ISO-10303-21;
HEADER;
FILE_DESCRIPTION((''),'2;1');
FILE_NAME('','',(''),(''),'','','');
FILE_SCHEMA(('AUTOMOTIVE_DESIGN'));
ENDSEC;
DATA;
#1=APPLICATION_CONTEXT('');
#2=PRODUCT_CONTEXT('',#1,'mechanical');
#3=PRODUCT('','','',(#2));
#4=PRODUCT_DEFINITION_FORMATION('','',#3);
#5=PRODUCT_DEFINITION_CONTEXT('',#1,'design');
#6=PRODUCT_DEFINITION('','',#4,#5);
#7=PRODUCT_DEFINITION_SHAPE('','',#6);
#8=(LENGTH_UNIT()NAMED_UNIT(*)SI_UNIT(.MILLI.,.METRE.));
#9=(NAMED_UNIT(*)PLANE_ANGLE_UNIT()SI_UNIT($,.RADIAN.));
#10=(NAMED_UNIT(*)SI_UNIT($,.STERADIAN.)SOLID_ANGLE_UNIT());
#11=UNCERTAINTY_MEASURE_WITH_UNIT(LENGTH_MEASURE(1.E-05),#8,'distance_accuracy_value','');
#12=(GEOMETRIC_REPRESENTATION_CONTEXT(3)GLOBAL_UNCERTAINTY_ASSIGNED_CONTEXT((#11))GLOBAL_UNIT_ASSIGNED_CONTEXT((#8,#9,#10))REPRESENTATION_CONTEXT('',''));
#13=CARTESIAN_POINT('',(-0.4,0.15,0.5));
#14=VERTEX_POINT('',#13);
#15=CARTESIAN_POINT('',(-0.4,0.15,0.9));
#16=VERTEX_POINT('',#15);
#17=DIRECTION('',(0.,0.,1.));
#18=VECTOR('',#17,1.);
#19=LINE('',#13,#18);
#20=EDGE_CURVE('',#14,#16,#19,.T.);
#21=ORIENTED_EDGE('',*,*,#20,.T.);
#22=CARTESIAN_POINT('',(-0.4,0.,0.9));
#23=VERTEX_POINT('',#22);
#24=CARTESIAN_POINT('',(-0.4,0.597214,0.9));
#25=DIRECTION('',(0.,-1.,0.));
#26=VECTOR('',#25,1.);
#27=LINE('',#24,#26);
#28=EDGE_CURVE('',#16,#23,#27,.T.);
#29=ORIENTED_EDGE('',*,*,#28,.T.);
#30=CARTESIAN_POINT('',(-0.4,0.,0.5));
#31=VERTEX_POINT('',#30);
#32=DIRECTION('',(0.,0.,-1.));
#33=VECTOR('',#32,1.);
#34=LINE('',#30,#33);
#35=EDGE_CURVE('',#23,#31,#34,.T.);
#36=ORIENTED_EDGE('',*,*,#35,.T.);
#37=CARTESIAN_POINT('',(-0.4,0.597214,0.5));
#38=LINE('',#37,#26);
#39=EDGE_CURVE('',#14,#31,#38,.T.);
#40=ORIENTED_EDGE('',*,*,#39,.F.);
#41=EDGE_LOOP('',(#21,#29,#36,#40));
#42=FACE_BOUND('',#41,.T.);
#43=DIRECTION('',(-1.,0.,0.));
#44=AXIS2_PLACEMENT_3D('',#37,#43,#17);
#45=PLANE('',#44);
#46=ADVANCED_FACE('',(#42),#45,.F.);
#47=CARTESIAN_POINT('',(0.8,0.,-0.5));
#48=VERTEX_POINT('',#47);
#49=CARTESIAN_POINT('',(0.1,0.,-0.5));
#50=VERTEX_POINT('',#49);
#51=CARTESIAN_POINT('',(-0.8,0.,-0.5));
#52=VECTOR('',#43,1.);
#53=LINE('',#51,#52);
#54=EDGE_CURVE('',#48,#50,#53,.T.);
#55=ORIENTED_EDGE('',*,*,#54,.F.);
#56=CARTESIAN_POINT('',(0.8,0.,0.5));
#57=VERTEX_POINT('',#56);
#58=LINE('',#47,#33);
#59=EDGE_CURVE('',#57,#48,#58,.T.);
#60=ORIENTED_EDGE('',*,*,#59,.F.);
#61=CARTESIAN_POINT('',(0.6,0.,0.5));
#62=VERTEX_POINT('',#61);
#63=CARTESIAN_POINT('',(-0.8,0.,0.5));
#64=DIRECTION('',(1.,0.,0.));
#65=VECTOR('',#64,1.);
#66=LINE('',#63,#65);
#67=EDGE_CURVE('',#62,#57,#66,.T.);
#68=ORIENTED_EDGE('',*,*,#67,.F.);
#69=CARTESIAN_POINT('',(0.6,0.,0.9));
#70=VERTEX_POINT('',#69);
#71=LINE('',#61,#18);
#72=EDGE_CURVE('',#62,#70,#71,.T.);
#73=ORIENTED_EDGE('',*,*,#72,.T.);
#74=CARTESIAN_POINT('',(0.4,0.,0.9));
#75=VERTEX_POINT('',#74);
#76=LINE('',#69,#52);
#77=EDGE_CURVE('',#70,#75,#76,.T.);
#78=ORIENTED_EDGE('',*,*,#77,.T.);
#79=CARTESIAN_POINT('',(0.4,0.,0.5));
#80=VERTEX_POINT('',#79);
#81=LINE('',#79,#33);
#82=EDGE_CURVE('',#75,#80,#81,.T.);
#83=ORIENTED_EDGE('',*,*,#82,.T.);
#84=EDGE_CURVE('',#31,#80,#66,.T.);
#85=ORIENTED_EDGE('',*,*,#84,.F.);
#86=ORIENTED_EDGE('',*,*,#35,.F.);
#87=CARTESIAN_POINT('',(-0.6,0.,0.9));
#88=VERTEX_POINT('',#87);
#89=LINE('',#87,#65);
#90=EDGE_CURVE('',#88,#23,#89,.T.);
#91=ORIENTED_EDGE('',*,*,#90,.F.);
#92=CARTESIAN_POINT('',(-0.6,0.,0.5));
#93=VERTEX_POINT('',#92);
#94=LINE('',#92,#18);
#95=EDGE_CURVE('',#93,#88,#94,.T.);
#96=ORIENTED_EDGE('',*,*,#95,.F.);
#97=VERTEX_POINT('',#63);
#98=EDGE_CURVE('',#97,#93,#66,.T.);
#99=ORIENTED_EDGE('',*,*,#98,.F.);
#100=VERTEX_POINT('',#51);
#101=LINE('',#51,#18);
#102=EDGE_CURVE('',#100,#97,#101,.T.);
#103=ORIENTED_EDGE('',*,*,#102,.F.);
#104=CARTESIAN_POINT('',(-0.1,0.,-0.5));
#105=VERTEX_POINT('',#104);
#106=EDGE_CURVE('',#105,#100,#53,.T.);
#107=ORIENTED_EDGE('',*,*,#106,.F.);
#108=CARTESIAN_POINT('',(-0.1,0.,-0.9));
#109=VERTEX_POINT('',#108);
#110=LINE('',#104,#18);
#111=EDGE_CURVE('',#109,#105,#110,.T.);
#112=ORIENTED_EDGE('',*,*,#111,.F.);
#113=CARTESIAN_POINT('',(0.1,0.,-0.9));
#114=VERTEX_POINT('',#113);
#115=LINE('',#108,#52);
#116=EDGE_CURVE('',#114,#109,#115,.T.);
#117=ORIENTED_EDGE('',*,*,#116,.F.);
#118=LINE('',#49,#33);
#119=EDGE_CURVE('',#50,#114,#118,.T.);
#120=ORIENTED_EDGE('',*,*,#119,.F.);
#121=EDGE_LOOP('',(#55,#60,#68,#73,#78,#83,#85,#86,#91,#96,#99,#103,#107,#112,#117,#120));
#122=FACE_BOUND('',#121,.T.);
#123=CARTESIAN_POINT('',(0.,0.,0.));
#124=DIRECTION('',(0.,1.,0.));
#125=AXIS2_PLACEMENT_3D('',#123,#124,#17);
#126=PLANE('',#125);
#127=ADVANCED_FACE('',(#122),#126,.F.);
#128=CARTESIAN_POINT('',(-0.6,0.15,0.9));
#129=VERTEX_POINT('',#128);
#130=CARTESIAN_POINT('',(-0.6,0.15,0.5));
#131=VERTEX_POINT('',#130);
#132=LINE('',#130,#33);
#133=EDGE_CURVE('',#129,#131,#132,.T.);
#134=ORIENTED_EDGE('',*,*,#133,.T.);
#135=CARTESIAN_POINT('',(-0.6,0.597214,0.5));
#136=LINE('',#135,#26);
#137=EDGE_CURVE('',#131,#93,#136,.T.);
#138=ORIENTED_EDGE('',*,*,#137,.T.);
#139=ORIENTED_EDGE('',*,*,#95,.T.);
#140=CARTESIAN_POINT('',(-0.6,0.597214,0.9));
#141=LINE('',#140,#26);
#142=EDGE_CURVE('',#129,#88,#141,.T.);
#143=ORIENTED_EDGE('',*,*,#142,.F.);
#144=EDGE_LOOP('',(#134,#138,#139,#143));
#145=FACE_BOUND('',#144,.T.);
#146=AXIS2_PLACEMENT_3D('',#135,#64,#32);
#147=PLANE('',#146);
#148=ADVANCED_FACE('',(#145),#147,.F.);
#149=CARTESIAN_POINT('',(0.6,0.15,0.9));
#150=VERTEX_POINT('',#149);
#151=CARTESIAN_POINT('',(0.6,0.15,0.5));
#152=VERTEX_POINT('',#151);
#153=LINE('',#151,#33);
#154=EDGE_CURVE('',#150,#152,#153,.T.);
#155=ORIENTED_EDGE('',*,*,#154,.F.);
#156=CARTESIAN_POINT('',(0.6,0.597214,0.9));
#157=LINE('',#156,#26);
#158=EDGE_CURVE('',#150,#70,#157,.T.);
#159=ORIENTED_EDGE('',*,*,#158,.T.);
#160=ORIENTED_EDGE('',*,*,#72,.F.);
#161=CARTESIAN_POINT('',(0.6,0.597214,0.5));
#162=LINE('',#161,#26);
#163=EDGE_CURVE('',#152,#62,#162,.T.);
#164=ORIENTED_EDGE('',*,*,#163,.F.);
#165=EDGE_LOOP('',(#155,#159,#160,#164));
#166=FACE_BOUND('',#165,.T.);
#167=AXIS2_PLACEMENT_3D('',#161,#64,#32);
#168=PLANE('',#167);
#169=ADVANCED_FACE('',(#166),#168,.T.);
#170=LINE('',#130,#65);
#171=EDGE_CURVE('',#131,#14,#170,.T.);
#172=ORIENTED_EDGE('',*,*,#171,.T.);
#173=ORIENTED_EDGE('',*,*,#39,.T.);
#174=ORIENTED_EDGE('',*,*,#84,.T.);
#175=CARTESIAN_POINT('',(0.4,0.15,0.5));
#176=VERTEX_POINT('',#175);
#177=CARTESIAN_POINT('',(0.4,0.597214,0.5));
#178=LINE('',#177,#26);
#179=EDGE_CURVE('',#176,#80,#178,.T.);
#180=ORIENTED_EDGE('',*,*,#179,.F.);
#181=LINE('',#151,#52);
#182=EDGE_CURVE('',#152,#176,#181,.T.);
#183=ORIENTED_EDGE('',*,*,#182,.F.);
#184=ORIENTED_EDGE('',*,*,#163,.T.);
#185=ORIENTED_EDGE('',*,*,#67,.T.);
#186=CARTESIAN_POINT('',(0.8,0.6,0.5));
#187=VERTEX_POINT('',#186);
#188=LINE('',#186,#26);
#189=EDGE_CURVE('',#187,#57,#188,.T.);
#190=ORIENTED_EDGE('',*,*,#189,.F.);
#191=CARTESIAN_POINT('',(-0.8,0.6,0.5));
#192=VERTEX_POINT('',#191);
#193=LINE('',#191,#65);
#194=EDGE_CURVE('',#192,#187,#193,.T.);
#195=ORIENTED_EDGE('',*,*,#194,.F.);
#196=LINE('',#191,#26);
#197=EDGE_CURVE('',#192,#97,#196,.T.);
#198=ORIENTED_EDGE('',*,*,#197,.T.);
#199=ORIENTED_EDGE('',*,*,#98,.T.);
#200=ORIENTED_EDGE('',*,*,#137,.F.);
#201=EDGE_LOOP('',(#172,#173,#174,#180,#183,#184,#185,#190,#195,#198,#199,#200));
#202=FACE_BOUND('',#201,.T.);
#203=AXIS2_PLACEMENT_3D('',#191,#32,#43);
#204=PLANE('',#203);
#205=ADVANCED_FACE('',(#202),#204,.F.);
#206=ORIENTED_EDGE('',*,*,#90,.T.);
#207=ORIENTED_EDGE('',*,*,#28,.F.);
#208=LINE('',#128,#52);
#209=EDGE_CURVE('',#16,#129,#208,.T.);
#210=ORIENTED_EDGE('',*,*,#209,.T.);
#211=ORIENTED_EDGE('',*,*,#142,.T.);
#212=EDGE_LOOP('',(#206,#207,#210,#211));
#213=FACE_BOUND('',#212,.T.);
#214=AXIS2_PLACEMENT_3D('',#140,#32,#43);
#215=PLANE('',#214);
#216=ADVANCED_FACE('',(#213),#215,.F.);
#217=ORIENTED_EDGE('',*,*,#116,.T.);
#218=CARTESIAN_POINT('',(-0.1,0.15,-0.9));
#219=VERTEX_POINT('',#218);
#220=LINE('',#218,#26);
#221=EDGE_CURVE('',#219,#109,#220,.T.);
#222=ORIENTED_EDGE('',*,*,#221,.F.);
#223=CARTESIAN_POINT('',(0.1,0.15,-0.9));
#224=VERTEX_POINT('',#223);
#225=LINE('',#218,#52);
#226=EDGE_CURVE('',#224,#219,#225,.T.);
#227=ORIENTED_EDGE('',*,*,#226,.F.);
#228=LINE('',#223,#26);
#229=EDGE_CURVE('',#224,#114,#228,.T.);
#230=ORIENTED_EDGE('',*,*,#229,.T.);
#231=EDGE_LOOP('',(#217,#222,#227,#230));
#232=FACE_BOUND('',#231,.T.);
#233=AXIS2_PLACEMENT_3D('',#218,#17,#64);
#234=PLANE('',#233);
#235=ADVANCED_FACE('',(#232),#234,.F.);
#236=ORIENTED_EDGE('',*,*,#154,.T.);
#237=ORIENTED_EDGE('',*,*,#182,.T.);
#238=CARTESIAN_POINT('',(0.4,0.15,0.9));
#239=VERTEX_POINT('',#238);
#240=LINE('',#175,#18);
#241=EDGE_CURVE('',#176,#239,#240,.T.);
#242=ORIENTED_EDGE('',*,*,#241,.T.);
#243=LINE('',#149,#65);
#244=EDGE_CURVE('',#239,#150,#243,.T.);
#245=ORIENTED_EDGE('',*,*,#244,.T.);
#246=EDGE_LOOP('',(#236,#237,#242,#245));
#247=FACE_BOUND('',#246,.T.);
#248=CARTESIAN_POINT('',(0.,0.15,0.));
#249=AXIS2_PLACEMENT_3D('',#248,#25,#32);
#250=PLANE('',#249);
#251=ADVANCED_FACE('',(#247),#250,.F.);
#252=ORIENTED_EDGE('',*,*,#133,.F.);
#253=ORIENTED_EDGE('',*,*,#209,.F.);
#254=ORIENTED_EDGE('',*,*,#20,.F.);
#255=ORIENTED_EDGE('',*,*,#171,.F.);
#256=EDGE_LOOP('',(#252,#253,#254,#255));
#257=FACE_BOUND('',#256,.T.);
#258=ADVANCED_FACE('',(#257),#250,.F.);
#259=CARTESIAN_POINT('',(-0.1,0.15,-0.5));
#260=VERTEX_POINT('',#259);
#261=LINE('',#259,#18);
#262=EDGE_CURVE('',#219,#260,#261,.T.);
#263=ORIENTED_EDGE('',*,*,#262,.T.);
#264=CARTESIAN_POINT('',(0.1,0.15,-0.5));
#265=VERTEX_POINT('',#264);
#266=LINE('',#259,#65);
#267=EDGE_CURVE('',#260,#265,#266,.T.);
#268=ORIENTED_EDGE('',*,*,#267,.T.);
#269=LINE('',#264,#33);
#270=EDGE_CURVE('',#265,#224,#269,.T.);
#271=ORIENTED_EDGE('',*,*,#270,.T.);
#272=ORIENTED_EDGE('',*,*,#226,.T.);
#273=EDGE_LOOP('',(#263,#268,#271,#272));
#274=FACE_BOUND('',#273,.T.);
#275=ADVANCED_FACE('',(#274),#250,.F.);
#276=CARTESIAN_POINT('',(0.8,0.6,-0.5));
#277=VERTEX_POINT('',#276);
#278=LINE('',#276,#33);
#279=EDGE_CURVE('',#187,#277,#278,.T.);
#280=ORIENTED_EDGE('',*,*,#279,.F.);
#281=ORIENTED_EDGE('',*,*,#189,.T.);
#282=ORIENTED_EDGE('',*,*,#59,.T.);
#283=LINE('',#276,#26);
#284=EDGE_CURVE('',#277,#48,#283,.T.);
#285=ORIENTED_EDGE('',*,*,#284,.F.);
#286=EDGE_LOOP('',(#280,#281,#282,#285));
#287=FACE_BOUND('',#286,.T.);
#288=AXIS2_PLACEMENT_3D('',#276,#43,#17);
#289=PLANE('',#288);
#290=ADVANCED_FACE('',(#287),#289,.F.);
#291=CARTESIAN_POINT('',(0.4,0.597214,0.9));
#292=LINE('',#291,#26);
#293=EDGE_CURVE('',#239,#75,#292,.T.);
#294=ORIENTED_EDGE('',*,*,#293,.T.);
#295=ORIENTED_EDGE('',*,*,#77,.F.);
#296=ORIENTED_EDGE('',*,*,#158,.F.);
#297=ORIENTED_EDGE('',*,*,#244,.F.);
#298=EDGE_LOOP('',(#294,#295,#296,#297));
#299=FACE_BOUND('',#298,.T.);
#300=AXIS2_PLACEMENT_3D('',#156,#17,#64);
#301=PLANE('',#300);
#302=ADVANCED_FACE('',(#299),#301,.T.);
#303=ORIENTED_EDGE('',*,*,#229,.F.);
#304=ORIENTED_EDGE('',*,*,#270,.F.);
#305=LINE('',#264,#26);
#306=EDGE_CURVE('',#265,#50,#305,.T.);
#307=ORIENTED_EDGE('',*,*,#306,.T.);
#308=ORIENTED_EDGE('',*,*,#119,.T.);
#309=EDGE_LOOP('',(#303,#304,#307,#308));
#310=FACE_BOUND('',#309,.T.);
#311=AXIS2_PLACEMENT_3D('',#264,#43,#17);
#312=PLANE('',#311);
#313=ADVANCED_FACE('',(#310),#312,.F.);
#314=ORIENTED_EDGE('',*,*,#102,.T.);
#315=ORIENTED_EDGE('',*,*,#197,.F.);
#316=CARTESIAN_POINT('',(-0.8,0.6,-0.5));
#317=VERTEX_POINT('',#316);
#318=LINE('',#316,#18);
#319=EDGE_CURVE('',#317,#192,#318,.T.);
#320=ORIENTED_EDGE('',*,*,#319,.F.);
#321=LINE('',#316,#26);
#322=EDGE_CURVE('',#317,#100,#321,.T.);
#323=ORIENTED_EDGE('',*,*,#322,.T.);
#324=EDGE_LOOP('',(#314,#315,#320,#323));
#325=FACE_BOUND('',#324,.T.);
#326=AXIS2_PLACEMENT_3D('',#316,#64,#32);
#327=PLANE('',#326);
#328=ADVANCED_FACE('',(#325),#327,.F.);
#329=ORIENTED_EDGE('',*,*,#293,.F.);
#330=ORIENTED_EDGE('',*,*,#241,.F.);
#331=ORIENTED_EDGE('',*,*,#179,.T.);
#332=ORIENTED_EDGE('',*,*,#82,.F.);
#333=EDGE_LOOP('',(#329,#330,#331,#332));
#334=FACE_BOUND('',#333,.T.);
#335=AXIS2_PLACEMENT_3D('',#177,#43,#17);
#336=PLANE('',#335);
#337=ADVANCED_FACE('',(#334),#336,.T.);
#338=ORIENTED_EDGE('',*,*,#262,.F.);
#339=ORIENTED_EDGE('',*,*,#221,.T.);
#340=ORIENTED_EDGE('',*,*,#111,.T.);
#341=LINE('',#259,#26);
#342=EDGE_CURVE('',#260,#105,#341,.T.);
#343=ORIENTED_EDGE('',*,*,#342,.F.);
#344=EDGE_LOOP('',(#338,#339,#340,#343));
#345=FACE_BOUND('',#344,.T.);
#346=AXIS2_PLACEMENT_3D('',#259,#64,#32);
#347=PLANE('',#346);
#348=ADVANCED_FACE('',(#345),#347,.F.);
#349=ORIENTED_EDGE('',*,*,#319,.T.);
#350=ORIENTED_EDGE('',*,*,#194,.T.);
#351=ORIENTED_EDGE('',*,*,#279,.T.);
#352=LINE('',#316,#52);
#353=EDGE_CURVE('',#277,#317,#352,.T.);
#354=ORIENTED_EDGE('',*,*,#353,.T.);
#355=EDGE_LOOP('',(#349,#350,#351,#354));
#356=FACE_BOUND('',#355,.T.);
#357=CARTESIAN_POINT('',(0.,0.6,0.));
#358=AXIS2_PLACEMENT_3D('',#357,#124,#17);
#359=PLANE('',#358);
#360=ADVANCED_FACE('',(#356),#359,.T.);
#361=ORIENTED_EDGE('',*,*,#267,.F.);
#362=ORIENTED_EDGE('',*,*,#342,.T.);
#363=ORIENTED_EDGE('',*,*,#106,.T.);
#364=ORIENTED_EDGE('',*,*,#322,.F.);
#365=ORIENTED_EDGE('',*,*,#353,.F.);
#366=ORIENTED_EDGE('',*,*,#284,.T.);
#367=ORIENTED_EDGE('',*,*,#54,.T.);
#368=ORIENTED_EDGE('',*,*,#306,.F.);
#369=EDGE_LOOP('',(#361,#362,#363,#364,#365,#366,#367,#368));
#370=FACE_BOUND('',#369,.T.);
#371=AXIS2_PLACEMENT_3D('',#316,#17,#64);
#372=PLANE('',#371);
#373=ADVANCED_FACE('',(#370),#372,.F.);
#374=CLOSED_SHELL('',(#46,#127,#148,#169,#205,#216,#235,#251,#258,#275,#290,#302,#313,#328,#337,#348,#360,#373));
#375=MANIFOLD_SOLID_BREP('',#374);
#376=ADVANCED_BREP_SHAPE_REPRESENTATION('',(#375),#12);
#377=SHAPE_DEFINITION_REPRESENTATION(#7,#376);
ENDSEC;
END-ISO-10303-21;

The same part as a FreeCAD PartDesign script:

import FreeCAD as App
import Part
import Sketcher

V = App.Vector
Q = App.Units.Quantity

doc = App.newDocument("Part")
body = doc.addObject("PartDesign::Body", "Body")

sketch1 = doc.addObject("Sketcher::SketchObject", "Sketch")
body.addObject(sketch1)
sketch1.AttachmentSupport = (doc.XZ_Plane, [""])
sketch1.MapMode = "FlatFace"
sketch1.addGeometry(Part.LineSegment(V(-0.8, -0.5, 0), V(-0.8, 0.5, 0)), False)
sketch1.addGeometry(Part.LineSegment(V(-0.8, 0.5, 0), V(0.8, 0.5, 0)), False)
sketch1.addGeometry(Part.LineSegment(V(0.8, 0.5, 0), V(0.8, -0.5, 0)), False)
sketch1.addGeometry(Part.LineSegment(V(0.8, -0.5, 0), V(-0.8, -0.5, 0)), False)
sketch1.addConstraint(Sketcher.Constraint("Coincident", 0, 2, 1, 1))
sketch1.addConstraint(Sketcher.Constraint("Coincident", 1, 2, 2, 1))
sketch1.addConstraint(Sketcher.Constraint("Coincident", 2, 2, 3, 1))
sketch1.addConstraint(Sketcher.Constraint("Coincident", 3, 2, 0, 1))
sketch1.addConstraint(Sketcher.Constraint("Vertical", 0))
sketch1.addConstraint(Sketcher.Constraint("Horizontal", 1))
sketch1.addConstraint(Sketcher.Constraint("Vertical", 2))
sketch1.addConstraint(Sketcher.Constraint("Horizontal", 3))
sketch1.addConstraint(Sketcher.Constraint("Symmetric", 0, 2, 2, 2, -1, 1))
sketch1.addConstraint(Sketcher.Constraint("DistanceY", 0, 1, 0, 2, Q("1 mm")))
sketch1.addConstraint(Sketcher.Constraint("DistanceX", 1, 1, 1, 2, Q("1.6 mm")))
pad1 = doc.addObject("PartDesign::Pad", "Pad")
body.addObject(pad1)
pad1.Profile = sketch1
pad1.Length = 0.6
pad1.Reversed = True

sketch2 = doc.addObject("Sketcher::SketchObject", "Sketch001")
body.addObject(sketch2)
sketch2.AttachmentSupport = (doc.XZ_Plane, [""])
sketch2.MapMode = "FlatFace"
sketch2.addGeometry(Part.LineSegment(V(-0.1, -0.9, 0), V(-0.1, -0.5, 0)), False)
sketch2.addGeometry(Part.LineSegment(V(-0.1, -0.5, 0), V(0.1, -0.5, 0)), False)
sketch2.addGeometry(Part.LineSegment(V(0.1, -0.5, 0), V(0.1, -0.9, 0)), False)
sketch2.addGeometry(Part.LineSegment(V(0.1, -0.9, 0), V(-0.1, -0.9, 0)), False)
sketch2.addConstraint(Sketcher.Constraint("Coincident", 0, 2, 1, 1))
sketch2.addConstraint(Sketcher.Constraint("Coincident", 1, 2, 2, 1))
sketch2.addConstraint(Sketcher.Constraint("Coincident", 2, 2, 3, 1))
sketch2.addConstraint(Sketcher.Constraint("Coincident", 3, 2, 0, 1))
sketch2.addConstraint(Sketcher.Constraint("Vertical", 0))
sketch2.addConstraint(Sketcher.Constraint("Horizontal", 1))
sketch2.addConstraint(Sketcher.Constraint("Vertical", 2))
sketch2.addConstraint(Sketcher.Constraint("Horizontal", 3))
sketch2.addConstraint(Sketcher.Constraint("DistanceX", 1, 1, 1, 2, Q("0.2 mm")))
sketch2.addConstraint(Sketcher.Constraint("DistanceY", 0, 1, 0, 2, Q("0.4 mm")))
sketch2.addConstraint(Sketcher.Constraint("DistanceX", 0, 2, -1, 1, Q("0.1 mm")))
sketch2.addConstraint(Sketcher.Constraint("DistanceY", 0, 2, -1, 1, Q("0.5 mm")))
pad2 = doc.addObject("PartDesign::Pad", "Pad001")
body.addObject(pad2)
pad2.Profile = sketch2
pad2.Length = 0.15
pad2.Reversed = True

sketch3 = doc.addObject("Sketcher::SketchObject", "Sketch002")
body.addObject(sketch3)
sketch3.AttachmentSupport = (doc.XZ_Plane, [""])
sketch3.MapMode = "FlatFace"
sketch3.addGeometry(Part.LineSegment(V(-0.6, 0.5, 0), V(-0.6, 0.9, 0)), False)
sketch3.addGeometry(Part.LineSegment(V(-0.6, 0.9, 0), V(-0.4, 0.9, 0)), False)
sketch3.addGeometry(Part.LineSegment(V(-0.4, 0.9, 0), V(-0.4, 0.5, 0)), False)
sketch3.addGeometry(Part.LineSegment(V(-0.4, 0.5, 0), V(-0.6, 0.5, 0)), False)
sketch3.addConstraint(Sketcher.Constraint("Coincident", 0, 2, 1, 1))
sketch3.addConstraint(Sketcher.Constraint("Coincident", 1, 2, 2, 1))
sketch3.addConstraint(Sketcher.Constraint("Coincident", 2, 2, 3, 1))
sketch3.addConstraint(Sketcher.Constraint("Coincident", 3, 2, 0, 1))
sketch3.addConstraint(Sketcher.Constraint("Vertical", 0))
sketch3.addConstraint(Sketcher.Constraint("Horizontal", 1))
sketch3.addConstraint(Sketcher.Constraint("Vertical", 2))
sketch3.addConstraint(Sketcher.Constraint("Horizontal", 3))
sketch3.addConstraint(Sketcher.Constraint("DistanceX", 1, 1, 1, 2, Q("0.2 mm")))
sketch3.addConstraint(Sketcher.Constraint("DistanceY", 0, 1, 0, 2, Q("0.4 mm")))
sketch3.addConstraint(Sketcher.Constraint("DistanceX", 0, 2, -1, 1, Q("0.6 mm")))
sketch3.addConstraint(Sketcher.Constraint("DistanceY", -1, 1, 0, 2, Q("0.9 mm")))
pad3 = doc.addObject("PartDesign::Pad", "Pad002")
body.addObject(pad3)
pad3.Profile = sketch3
pad3.Length = 0.15
pad3.Reversed = True
doc.recompute()

mirrored = doc.addObject("PartDesign::Mirrored", "Mirrored")
body.addObject(mirrored)
mirrored.Originals = [pad3]
mirrored.MirrorPlane = (doc.YZ_Plane, [""])
body.Tip = mirrored

doc.recompute()
